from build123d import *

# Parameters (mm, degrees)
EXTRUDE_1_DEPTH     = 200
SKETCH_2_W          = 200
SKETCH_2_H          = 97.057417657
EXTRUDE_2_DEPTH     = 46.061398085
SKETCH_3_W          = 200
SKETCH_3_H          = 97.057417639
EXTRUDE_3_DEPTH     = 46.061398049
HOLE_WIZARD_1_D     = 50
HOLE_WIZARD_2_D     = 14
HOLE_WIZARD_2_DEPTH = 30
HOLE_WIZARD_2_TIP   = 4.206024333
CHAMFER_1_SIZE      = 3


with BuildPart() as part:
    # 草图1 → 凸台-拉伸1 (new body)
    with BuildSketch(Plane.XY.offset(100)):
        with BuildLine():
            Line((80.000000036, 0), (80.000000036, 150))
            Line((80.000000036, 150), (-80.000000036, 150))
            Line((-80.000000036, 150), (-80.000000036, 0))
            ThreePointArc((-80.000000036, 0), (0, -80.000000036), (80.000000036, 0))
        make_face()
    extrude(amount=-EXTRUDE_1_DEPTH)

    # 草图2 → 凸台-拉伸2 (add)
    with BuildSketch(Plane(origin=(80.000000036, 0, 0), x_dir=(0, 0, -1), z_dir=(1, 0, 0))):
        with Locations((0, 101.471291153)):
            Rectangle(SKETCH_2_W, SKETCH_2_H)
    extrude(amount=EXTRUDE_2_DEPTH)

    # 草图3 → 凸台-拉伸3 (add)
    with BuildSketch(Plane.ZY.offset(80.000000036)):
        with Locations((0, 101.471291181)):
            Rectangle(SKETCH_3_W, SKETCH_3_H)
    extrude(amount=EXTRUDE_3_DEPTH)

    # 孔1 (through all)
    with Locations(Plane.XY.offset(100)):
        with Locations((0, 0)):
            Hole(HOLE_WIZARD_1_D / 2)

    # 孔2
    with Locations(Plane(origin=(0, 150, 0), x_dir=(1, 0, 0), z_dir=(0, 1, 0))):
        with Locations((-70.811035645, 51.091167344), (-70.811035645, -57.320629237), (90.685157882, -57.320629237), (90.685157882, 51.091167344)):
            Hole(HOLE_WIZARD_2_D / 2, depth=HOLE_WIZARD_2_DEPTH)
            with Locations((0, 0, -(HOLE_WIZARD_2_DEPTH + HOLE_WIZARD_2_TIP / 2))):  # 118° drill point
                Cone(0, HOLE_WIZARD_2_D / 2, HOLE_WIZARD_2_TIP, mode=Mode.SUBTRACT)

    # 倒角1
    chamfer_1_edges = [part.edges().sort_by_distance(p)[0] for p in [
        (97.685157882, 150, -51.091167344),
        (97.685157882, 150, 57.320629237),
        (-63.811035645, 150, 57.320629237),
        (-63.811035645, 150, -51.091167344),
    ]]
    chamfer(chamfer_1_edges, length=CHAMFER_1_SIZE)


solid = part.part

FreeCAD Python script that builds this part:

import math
import FreeCAD as App
import Part
import Sketcher

V = App.Vector
Q = App.Units.Quantity


def edges_at(feature, points):
    """Names of the edges that pass closest to the given points."""
    edges = feature.Shape.Edges
    near = lambda p: min(range(len(edges)), key=lambda i: edges[i].distToShape(Part.Vertex(*p))[0])
    return sorted({f"Edge{near(p) + 1}" for p in points})


def add_polygon(sketch, points):
    """Adds a closed chain of lines whose ends are joined by coincident constraints."""
    first, n = sketch.GeometryCount, len(points)
    for a, b in zip(points, points[1:] + points[:1]):
        sketch.addGeometry(Part.LineSegment(App.Vector(*a, 0), App.Vector(*b, 0)), False)
    for i in range(n):
        sketch.addConstraint(Sketcher.Constraint("Coincident", first + i, 2, first + (i + 1) % n, 1))

doc = App.newDocument("Part")
body = doc.addObject("PartDesign::Body", "Body")

# Sketch on XY plane
sketch1 = doc.addObject("Sketcher::SketchObject", "Sketch")
body.addObject(sketch1)
sketch1.AttachmentSupport = (doc.XY_Plane, [""])
sketch1.MapMode = "FlatFace"
sketch1.AttachmentOffset = App.Placement(V(0, 0, 100), App.Rotation())
sketch1.addGeometry([
    Part.LineSegment(V(80, 0, 0), V(80, 150, 0)),
    Part.LineSegment(V(80, 150, 0), V(-80, 150, 0)),
    Part.LineSegment(V(-80, 150, 0), V(-80, 0, 0)),
    Part.ArcOfCircle(Part.Circle(V(0, 0, 0), V(0, 0, 1), 80), math.radians(180), math.radians(360)),
], False)
sketch1.addConstraint([
    Sketcher.Constraint("Coincident", 0, 2, 1, 1),
    Sketcher.Constraint("Coincident", 1, 2, 2, 1),
    Sketcher.Constraint("Tangent", 2, 2, 3, 1),
    Sketcher.Constraint("Tangent", 3, 2, 0, 1),
    Sketcher.Constraint("Vertical", 0),
    Sketcher.Constraint("Horizontal", 1),
    Sketcher.Constraint("Vertical", 2),
    Sketcher.Constraint("Coincident", 3, 3, -1, 1),
    Sketcher.Constraint("Radius", 3, Q("80 mm")),
    Sketcher.Constraint("DistanceY", 0, 1, 0, 2, Q("150 mm")),
])
pad1 = doc.addObject("PartDesign::Pad", "Pad")
body.addObject(pad1)
pad1.Profile = sketch1
pad1.Length = 200
pad1.Reversed = True

# Sketch on YZ plane
sketch2 = doc.addObject("Sketcher::SketchObject", "Sketch001")
body.addObject(sketch2)
sketch2.AttachmentSupport = (doc.YZ_Plane, [""])
sketch2.MapMode = "FlatFace"
sketch2.AttachmentOffset = App.Placement(V(0, 0, 80), App.Rotation())
add_polygon(sketch2, [(150, 100), (53, 100), (53, -100), (150, -100)])  # lines 0-3
sketch2.addConstraint([
    Sketcher.Constraint("Horizontal", 0),
    Sketcher.Constraint("Vertical", 1),
    Sketcher.Constraint("Horizontal", 2),
    Sketcher.Constraint("Vertical", 3),
    Sketcher.Constraint("DistanceY", 1, 2, 1, 1, Q("200 mm")),
    Sketcher.Constraint("DistanceY", -1, 1, 0, 2, Q("100 mm")),
    Sketcher.Constraint("DistanceX", -1, 1, 2, 2, Q("150 mm")),
    Sketcher.Constraint("DistanceX", 0, 2, 0, 1, Q("97.057418 mm")),
])
pad2 = doc.addObject("PartDesign::Pad", "Pad001")
body.addObject(pad2)
pad2.Profile = sketch2
pad2.Length = 46.061398

# Sketch on YZ plane
sketch3 = doc.addObject("Sketcher::SketchObject", "Sketch002")
body.addObject(sketch3)
sketch3.AttachmentSupport = (doc.YZ_Plane, [""])
sketch3.MapMode = "FlatFace"
sketch3.AttachmentOffset = App.Placement(V(0, 0, -80), App.Rotation())
add_polygon(sketch3, [(150, -100), (53, -100), (53, 100), (150, 100)])  # lines 0-3
sketch3.addConstraint([
    Sketcher.Constraint("Horizontal", 0),
    Sketcher.Constraint("Vertical", 1),
    Sketcher.Constraint("Horizontal", 2),
    Sketcher.Constraint("Vertical", 3),
    Sketcher.Constraint("DistanceY", 1, 1, 1, 2, Q("200 mm")),
    Sketcher.Constraint("DistanceY", 0, 2, -1, 1, Q("100 mm")),
    Sketcher.Constraint("DistanceX", -1, 1, 2, 2, Q("150 mm")),
    Sketcher.Constraint("DistanceX", 0, 2, 0, 1, Q("97.057418 mm")),
])
pad3 = doc.addObject("PartDesign::Pad", "Pad002")
body.addObject(pad3)
pad3.Profile = sketch3
pad3.Length = 46.061398
pad3.Reversed = True

# Sketch on XY plane
sketch4 = doc.addObject("Sketcher::SketchObject", "Sketch003")
body.addObject(sketch4)
sketch4.AttachmentSupport = (doc.XY_Plane, [""])
sketch4.MapMode = "FlatFace"
sketch4.AttachmentOffset = App.Placement(V(0, 0, 100), App.Rotation())
sketch4.addGeometry(Part.Circle(V(0, 0, 0), V(0, 0, 1), 25), False)
sketch4.addConstraint([
    Sketcher.Constraint("Coincident", 0, 3, -1, 1),
    Sketcher.Constraint("Diameter", 0, Q("50 mm")),
])
doc.recompute()
hole = doc.addObject("PartDesign::Hole", "Hole")
body.addObject(hole)
hole.Profile = sketch4
hole.ThreadType = "None"
hole.Diameter = 50
hole.DepthType = "ThroughAll"

# Sketch on XZ plane
sketch5 = doc.addObject("Sketcher::SketchObject", "Sketch004")
body.addObject(sketch5)
sketch5.AttachmentSupport = (doc.XZ_Plane, [""])
sketch5.MapMode = "FlatFace"
sketch5.AttachmentOffset = App.Placement(V(0, 0, -150), App.Rotation())
sketch5.addGeometry([
    Part.Circle(V(-71, -51, 0), V(0, 0, 1), 7),
    Part.Circle(V(-71, 57, 0), V(0, 0, 1), 7),
    Part.Circle(V(91, 57, 0), V(0, 0, 1), 7),
    Part.Circle(V(91, -51, 0), V(0, 0, 1), 7),
], False)
sketch5.addConstraint([
    Sketcher.Constraint("Equal", 0, 1),
    Sketcher.Constraint("Equal", 1, 2),
    Sketcher.Constraint("Equal", 2, 3),
    Sketcher.Constraint("Horizontal", 1, 3, 2, 3),
    Sketcher.Constraint("Horizontal", 0, 3, 3, 3),
    Sketcher.Constraint("Vertical", 0, 3, 1, 3),
    Sketcher.Constraint("Vertical", 2, 3, 3, 3),
    Sketcher.Constraint("Diameter", 0, Q("14 mm")),
    Sketcher.Constraint("DistanceY", -1, 1, 1, 3, Q("57.320629 mm")),
    Sketcher.Constraint("DistanceX", 0, 3, -1, 1, Q("70.811036 mm")),
    Sketcher.Constraint("DistanceY", 0, 3, -1, 1, Q("51.091167 mm")),
    Sketcher.Constraint("DistanceX", -1, 1, 2, 3, Q("90.685158 mm")),
])
doc.recompute()
hole2 = doc.addObject("PartDesign::Hole", "Hole001")
body.addObject(hole2)
hole2.Profile = sketch5
hole2.ThreadType = "None"
hole2.Diameter = 14
hole2.DepthType = "Dimension"
hole2.Depth = 30
hole2.DrillPoint = "Angled"
hole2.DrillPointAngle = 118
hole2.Reversed = True
doc.recompute()

chamfer = doc.addObject("PartDesign::Chamfer", "Chamfer")
body.addObject(chamfer)
chamfer.Base = (hole2, edges_at(hole2, [
    (97.685, 150, -51.091),
    (97.685, 150, 57.321),
    (-63.811, 150, 57.321),
    (-63.811, 150, -51.091),
]))
chamfer.Size = 3

doc.recompute()
